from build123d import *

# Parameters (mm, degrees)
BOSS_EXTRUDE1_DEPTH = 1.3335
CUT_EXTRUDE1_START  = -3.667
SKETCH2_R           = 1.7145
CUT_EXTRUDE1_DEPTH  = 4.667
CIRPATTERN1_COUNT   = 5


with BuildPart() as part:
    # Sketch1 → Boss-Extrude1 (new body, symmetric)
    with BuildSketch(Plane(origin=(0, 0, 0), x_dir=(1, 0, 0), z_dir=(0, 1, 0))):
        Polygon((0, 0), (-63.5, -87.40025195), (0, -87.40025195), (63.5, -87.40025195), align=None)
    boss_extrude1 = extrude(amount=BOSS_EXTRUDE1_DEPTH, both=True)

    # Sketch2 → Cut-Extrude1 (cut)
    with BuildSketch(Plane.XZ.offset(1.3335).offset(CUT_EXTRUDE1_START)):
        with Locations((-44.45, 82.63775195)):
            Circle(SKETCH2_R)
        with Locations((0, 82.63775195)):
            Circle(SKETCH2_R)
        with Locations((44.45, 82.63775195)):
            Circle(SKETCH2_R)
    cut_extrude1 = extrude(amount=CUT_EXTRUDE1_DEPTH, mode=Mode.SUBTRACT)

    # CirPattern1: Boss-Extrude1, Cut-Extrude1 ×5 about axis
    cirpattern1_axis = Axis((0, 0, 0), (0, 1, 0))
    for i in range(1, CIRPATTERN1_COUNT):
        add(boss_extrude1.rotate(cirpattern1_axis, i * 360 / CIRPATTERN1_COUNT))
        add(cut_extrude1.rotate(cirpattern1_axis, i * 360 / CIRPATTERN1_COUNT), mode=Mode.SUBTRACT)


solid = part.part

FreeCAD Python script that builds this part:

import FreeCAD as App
import Part
import Sketcher

V = App.Vector
Q = App.Units.Quantity

doc = App.newDocument("Part")
body = doc.addObject("PartDesign::Body", "Body")

sketch1 = body.newObject("Sketcher::SketchObject", "Sketch")
sketch1.AttachmentSupport = (doc.getObject("XZ_Plane"), [""])
sketch1.MapMode = "FlatFace"
sketch1.addGeometry(Part.LineSegment(V(0, 0, 0), V(-64, 87, 0)), False)
sketch1.addGeometry(Part.LineSegment(V(-64, 87, 0), V(64, 87, 0)), False)
sketch1.addGeometry(Part.LineSegment(V(64, 87, 0), V(0, 0, 0)), False)
sketch1.addConstraint(Sketcher.Constraint("Coincident", 0, 2, 1, 1))
sketch1.addConstraint(Sketcher.Constraint("Coincident", 1, 2, 2, 1))
sketch1.addConstraint(Sketcher.Constraint("Coincident", 2, 2, 0, 1))
sketch1.addConstraint(Sketcher.Constraint("Horizontal", 1))
sketch1.addConstraint(Sketcher.Constraint("Coincident", 2, 2, -1, 1))
sketch1.addConstraint(Sketcher.Constraint("Equal", 0, 2))
sketch1.addConstraint(Sketcher.Constraint("DistanceX", 1, 1, 1, 2, Q("5 in")))
sketch1.addConstraint(Sketcher.Constraint("Angle", 0, Q("126 deg")))
pad1 = body.newObject("PartDesign::Pad", "Pad")
pad1.Profile = sketch1
pad1.Length = Q("0.105 in")
pad1.Midplane = True

sketch2 = body.newObject("Sketcher::SketchObject", "Sketch001")
sketch2.AttachmentSupport = (doc.getObject("XZ_Plane"), [""])
sketch2.MapMode = "FlatFace"
sketch2.AttachmentOffset = App.Placement(V(0, 0, -2.3335), App.Rotation())
sketch2.addGeometry(Part.Circle(V(-44.5, 82.6, 0), V(0, 0, 1), 1.7), False)
sketch2.addGeometry(Part.Circle(V(0, 82.6, 0), V(0, 0, 1), 1.7), False)
sketch2.addGeometry(Part.Circle(V(44.5, 82.6, 0), V(0, 0, 1), 1.7), False)
sketch2.addConstraint(Sketcher.Constraint("Equal", 0, 1))
sketch2.addConstraint(Sketcher.Constraint("Equal", 1, 2))
sketch2.addConstraint(Sketcher.Constraint("Symmetric", 0, 3, 2, 3, -2))
sketch2.addConstraint(Sketcher.Constraint("PointOnObject", 1, 3, -2))
sketch2.addConstraint(Sketcher.Constraint("Horizontal", 0, 3, 1, 3))
sketch2.addConstraint(Sketcher.Constraint("Diameter", 0, Q("0.135 in")))
sketch2.addConstraint(Sketcher.Constraint("DistanceX", 0, 3, 2, 3, Q("3.5 in")))
sketch2.addConstraint(Sketcher.Constraint("DistanceY", -1, 1, 0, 3, Q("82.637752 mm")))
pocket1 = body.newObject("PartDesign::Pocket", "Pocket")
pocket1.Profile = sketch2
pocket1.Length = 4.667
pocket1.Reversed = True
doc.recompute()

polarpattern = body.newObject("PartDesign::PolarPattern", "PolarPattern")
polarpattern.Originals = [pad1, pocket1]
polarpattern.Axis = (doc.getObject("Y_Axis"), [""])
polarpattern.Angle = 360
polarpattern.Occurrences = 5
body.Tip = polarpattern

doc.recompute()
